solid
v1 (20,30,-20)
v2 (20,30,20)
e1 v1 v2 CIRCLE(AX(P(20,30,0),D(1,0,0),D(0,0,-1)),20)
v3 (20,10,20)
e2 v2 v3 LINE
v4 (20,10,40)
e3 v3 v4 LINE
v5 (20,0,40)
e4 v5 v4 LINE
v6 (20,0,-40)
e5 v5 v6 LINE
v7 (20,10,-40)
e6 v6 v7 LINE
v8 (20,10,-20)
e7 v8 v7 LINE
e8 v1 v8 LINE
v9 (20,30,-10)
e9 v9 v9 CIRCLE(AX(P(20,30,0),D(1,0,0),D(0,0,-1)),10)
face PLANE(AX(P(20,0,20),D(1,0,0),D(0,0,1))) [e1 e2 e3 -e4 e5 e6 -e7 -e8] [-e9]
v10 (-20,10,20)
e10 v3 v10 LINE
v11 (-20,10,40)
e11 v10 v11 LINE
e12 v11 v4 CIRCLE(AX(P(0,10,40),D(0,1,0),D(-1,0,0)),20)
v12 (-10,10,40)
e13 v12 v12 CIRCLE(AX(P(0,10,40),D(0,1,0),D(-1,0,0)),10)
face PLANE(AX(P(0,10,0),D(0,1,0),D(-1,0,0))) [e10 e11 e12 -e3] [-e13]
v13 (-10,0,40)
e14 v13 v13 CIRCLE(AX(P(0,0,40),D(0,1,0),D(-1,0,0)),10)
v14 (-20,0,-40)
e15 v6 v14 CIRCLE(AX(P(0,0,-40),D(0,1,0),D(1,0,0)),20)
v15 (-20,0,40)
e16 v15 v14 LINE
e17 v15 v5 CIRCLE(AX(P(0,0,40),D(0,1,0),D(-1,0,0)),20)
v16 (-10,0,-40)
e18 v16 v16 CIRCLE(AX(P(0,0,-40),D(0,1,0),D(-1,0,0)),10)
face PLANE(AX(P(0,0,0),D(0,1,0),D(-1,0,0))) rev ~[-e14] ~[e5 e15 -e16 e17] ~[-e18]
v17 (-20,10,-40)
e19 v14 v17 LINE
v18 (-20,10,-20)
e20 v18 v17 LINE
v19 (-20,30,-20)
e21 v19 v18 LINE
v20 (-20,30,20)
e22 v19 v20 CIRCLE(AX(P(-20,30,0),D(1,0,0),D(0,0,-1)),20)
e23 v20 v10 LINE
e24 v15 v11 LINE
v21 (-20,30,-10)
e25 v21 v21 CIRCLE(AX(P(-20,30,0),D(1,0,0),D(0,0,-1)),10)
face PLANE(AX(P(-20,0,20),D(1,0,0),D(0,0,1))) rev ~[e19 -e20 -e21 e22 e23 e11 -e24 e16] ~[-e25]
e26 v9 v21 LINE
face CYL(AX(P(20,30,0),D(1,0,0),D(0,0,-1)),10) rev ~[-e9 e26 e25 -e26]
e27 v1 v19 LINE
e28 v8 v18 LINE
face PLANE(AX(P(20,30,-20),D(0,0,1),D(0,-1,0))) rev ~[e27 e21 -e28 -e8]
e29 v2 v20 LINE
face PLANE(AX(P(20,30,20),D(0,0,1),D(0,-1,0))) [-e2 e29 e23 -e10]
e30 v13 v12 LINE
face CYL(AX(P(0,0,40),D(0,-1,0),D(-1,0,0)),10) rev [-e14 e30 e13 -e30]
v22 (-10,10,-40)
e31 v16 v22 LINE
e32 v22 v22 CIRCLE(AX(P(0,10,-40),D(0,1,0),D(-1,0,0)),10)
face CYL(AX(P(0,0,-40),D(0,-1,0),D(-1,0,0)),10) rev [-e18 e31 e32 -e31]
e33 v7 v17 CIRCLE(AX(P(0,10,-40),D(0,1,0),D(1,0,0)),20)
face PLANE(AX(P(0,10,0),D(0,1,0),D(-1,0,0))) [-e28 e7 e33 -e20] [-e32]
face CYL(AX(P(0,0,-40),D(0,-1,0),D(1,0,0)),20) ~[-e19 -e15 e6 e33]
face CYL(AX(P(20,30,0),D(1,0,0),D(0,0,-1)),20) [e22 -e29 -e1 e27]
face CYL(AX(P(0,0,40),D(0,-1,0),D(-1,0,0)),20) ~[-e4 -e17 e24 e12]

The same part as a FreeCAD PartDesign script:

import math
import FreeCAD as App
import Part
import Sketcher
Q = App.Units.Quantity

doc = App.newDocument("Part")
body = doc.addObject("PartDesign::Body", "Body")

# Sketch on XZ plane
sketch1 = body.newObject("Sketcher::SketchObject", "Sketch")
sketch1.AttachmentSupport = (doc.getObject("XZ_Plane"), [""])
sketch1.MapMode = "FlatFace"
sketch1.addGeometry([
    Part.LineSegment(App.Vector(20, 40, 0), App.Vector(20, -40, 0)),  # 0
    Part.ArcOfCircle(Part.Circle(App.Vector(0, -40, 0), App.Vector(0, 0, 1), 20), math.radians(180), math.radians(360)),  # 1
    Part.LineSegment(App.Vector(-20, -40, 0), App.Vector(-20, 40, 0)),  # 2
    Part.ArcOfCircle(Part.Circle(App.Vector(0, 40, 0), App.Vector(0, 0, 1), 20), math.radians(0), math.radians(180)),  # 3
    Part.Circle(App.Vector(0, -40, 0), App.Vector(0, 0, 1), 10),  # 4
    Part.Circle(App.Vector(0, 40, 0), App.Vector(0, 0, 1), 10),  # 5
], False)
sketch1.addConstraint([
    Sketcher.Constraint("Tangent", 0, 2, 1, 2),
    Sketcher.Constraint("Tangent", 1, 1, 2, 1),
    Sketcher.Constraint("Tangent", 2, 2, 3, 2),
    Sketcher.Constraint("Tangent", 3, 1, 0, 1),
    Sketcher.Constraint("Vertical", 0),
    Sketcher.Constraint("Vertical", 2),
    Sketcher.Constraint("Coincident", 4, 3, 1, 3),
    Sketcher.Constraint("Coincident", 5, 3, 3, 3),
    Sketcher.Constraint("Equal", 4, 5),
    Sketcher.Constraint("Symmetric", 1, 3, 3, 3, -1, 1),
    Sketcher.Constraint("Diameter", 4, Q("20 mm")),
    Sketcher.Constraint("Radius", 1, Q("20 mm")),
    Sketcher.Constraint("DistanceY", 0, 2, 0, 1, Q("80 mm")),
])
pad1 = body.newObject("PartDesign::Pad", "Pad")
pad1.Profile = sketch1
pad1.Length = 10
pad1.Reversed = True

# Sketch on YZ plane
sketch2 = body.newObject("Sketcher::SketchObject", "Sketch001")
sketch2.AttachmentSupport = (doc.getObject("YZ_Plane"), [""])
sketch2.MapMode = "FlatFace"
sketch2.AttachmentOffset = App.Placement(App.Vector(0, 0, 20), App.Rotation())
sketch2.addGeometry([
    Part.LineSegment(App.Vector(10, -20, 0), App.Vector(30, -20, 0)),  # 0
    Part.ArcOfCircle(Part.Circle(App.Vector(30, 0, 0), App.Vector(0, 0, 1), 20), math.radians(-90), math.radians(90)),  # 1
    Part.LineSegment(App.Vector(30, 20, 0), App.Vector(10, 20, 0)),  # 2
    Part.LineSegment(App.Vector(10, 20, 0), App.Vector(10, -20, 0)),  # 3
    Part.Circle(App.Vector(30, 0, 0), App.Vector(0, 0, 1), 10),  # 4
], False)
sketch2.addConstraint([
    Sketcher.Constraint("Tangent", 0, 2, 1, 1),
    Sketcher.Constraint("Tangent", 1, 2, 2, 1),
    Sketcher.Constraint("Coincident", 2, 2, 3, 1),
    Sketcher.Constraint("Coincident", 3, 2, 0, 1),
    Sketcher.Constraint("Horizontal", 0),
    Sketcher.Constraint("Horizontal", 2),
    Sketcher.Constraint("Vertical", 3),
    Sketcher.Constraint("Coincident", 4, 3, 1, 3),
    Sketcher.Constraint("PointOnObject", 1, 3, -1),
    Sketcher.Constraint("Diameter", 4, Q("20 mm")),
    Sketcher.Constraint("Radius", 1, Q("20 mm")),
    Sketcher.Constraint("DistanceX", 0, 1, 0, 2, Q("20 mm")),
    Sketcher.Constraint("DistanceX", -1, 1, 1, 3, Q("30 mm")),
])
pad2 = body.newObject("PartDesign::Pad", "Pad001")
pad2.Profile = sketch2
pad2.Length = 40
pad2.Reversed = True

doc.recompute()
